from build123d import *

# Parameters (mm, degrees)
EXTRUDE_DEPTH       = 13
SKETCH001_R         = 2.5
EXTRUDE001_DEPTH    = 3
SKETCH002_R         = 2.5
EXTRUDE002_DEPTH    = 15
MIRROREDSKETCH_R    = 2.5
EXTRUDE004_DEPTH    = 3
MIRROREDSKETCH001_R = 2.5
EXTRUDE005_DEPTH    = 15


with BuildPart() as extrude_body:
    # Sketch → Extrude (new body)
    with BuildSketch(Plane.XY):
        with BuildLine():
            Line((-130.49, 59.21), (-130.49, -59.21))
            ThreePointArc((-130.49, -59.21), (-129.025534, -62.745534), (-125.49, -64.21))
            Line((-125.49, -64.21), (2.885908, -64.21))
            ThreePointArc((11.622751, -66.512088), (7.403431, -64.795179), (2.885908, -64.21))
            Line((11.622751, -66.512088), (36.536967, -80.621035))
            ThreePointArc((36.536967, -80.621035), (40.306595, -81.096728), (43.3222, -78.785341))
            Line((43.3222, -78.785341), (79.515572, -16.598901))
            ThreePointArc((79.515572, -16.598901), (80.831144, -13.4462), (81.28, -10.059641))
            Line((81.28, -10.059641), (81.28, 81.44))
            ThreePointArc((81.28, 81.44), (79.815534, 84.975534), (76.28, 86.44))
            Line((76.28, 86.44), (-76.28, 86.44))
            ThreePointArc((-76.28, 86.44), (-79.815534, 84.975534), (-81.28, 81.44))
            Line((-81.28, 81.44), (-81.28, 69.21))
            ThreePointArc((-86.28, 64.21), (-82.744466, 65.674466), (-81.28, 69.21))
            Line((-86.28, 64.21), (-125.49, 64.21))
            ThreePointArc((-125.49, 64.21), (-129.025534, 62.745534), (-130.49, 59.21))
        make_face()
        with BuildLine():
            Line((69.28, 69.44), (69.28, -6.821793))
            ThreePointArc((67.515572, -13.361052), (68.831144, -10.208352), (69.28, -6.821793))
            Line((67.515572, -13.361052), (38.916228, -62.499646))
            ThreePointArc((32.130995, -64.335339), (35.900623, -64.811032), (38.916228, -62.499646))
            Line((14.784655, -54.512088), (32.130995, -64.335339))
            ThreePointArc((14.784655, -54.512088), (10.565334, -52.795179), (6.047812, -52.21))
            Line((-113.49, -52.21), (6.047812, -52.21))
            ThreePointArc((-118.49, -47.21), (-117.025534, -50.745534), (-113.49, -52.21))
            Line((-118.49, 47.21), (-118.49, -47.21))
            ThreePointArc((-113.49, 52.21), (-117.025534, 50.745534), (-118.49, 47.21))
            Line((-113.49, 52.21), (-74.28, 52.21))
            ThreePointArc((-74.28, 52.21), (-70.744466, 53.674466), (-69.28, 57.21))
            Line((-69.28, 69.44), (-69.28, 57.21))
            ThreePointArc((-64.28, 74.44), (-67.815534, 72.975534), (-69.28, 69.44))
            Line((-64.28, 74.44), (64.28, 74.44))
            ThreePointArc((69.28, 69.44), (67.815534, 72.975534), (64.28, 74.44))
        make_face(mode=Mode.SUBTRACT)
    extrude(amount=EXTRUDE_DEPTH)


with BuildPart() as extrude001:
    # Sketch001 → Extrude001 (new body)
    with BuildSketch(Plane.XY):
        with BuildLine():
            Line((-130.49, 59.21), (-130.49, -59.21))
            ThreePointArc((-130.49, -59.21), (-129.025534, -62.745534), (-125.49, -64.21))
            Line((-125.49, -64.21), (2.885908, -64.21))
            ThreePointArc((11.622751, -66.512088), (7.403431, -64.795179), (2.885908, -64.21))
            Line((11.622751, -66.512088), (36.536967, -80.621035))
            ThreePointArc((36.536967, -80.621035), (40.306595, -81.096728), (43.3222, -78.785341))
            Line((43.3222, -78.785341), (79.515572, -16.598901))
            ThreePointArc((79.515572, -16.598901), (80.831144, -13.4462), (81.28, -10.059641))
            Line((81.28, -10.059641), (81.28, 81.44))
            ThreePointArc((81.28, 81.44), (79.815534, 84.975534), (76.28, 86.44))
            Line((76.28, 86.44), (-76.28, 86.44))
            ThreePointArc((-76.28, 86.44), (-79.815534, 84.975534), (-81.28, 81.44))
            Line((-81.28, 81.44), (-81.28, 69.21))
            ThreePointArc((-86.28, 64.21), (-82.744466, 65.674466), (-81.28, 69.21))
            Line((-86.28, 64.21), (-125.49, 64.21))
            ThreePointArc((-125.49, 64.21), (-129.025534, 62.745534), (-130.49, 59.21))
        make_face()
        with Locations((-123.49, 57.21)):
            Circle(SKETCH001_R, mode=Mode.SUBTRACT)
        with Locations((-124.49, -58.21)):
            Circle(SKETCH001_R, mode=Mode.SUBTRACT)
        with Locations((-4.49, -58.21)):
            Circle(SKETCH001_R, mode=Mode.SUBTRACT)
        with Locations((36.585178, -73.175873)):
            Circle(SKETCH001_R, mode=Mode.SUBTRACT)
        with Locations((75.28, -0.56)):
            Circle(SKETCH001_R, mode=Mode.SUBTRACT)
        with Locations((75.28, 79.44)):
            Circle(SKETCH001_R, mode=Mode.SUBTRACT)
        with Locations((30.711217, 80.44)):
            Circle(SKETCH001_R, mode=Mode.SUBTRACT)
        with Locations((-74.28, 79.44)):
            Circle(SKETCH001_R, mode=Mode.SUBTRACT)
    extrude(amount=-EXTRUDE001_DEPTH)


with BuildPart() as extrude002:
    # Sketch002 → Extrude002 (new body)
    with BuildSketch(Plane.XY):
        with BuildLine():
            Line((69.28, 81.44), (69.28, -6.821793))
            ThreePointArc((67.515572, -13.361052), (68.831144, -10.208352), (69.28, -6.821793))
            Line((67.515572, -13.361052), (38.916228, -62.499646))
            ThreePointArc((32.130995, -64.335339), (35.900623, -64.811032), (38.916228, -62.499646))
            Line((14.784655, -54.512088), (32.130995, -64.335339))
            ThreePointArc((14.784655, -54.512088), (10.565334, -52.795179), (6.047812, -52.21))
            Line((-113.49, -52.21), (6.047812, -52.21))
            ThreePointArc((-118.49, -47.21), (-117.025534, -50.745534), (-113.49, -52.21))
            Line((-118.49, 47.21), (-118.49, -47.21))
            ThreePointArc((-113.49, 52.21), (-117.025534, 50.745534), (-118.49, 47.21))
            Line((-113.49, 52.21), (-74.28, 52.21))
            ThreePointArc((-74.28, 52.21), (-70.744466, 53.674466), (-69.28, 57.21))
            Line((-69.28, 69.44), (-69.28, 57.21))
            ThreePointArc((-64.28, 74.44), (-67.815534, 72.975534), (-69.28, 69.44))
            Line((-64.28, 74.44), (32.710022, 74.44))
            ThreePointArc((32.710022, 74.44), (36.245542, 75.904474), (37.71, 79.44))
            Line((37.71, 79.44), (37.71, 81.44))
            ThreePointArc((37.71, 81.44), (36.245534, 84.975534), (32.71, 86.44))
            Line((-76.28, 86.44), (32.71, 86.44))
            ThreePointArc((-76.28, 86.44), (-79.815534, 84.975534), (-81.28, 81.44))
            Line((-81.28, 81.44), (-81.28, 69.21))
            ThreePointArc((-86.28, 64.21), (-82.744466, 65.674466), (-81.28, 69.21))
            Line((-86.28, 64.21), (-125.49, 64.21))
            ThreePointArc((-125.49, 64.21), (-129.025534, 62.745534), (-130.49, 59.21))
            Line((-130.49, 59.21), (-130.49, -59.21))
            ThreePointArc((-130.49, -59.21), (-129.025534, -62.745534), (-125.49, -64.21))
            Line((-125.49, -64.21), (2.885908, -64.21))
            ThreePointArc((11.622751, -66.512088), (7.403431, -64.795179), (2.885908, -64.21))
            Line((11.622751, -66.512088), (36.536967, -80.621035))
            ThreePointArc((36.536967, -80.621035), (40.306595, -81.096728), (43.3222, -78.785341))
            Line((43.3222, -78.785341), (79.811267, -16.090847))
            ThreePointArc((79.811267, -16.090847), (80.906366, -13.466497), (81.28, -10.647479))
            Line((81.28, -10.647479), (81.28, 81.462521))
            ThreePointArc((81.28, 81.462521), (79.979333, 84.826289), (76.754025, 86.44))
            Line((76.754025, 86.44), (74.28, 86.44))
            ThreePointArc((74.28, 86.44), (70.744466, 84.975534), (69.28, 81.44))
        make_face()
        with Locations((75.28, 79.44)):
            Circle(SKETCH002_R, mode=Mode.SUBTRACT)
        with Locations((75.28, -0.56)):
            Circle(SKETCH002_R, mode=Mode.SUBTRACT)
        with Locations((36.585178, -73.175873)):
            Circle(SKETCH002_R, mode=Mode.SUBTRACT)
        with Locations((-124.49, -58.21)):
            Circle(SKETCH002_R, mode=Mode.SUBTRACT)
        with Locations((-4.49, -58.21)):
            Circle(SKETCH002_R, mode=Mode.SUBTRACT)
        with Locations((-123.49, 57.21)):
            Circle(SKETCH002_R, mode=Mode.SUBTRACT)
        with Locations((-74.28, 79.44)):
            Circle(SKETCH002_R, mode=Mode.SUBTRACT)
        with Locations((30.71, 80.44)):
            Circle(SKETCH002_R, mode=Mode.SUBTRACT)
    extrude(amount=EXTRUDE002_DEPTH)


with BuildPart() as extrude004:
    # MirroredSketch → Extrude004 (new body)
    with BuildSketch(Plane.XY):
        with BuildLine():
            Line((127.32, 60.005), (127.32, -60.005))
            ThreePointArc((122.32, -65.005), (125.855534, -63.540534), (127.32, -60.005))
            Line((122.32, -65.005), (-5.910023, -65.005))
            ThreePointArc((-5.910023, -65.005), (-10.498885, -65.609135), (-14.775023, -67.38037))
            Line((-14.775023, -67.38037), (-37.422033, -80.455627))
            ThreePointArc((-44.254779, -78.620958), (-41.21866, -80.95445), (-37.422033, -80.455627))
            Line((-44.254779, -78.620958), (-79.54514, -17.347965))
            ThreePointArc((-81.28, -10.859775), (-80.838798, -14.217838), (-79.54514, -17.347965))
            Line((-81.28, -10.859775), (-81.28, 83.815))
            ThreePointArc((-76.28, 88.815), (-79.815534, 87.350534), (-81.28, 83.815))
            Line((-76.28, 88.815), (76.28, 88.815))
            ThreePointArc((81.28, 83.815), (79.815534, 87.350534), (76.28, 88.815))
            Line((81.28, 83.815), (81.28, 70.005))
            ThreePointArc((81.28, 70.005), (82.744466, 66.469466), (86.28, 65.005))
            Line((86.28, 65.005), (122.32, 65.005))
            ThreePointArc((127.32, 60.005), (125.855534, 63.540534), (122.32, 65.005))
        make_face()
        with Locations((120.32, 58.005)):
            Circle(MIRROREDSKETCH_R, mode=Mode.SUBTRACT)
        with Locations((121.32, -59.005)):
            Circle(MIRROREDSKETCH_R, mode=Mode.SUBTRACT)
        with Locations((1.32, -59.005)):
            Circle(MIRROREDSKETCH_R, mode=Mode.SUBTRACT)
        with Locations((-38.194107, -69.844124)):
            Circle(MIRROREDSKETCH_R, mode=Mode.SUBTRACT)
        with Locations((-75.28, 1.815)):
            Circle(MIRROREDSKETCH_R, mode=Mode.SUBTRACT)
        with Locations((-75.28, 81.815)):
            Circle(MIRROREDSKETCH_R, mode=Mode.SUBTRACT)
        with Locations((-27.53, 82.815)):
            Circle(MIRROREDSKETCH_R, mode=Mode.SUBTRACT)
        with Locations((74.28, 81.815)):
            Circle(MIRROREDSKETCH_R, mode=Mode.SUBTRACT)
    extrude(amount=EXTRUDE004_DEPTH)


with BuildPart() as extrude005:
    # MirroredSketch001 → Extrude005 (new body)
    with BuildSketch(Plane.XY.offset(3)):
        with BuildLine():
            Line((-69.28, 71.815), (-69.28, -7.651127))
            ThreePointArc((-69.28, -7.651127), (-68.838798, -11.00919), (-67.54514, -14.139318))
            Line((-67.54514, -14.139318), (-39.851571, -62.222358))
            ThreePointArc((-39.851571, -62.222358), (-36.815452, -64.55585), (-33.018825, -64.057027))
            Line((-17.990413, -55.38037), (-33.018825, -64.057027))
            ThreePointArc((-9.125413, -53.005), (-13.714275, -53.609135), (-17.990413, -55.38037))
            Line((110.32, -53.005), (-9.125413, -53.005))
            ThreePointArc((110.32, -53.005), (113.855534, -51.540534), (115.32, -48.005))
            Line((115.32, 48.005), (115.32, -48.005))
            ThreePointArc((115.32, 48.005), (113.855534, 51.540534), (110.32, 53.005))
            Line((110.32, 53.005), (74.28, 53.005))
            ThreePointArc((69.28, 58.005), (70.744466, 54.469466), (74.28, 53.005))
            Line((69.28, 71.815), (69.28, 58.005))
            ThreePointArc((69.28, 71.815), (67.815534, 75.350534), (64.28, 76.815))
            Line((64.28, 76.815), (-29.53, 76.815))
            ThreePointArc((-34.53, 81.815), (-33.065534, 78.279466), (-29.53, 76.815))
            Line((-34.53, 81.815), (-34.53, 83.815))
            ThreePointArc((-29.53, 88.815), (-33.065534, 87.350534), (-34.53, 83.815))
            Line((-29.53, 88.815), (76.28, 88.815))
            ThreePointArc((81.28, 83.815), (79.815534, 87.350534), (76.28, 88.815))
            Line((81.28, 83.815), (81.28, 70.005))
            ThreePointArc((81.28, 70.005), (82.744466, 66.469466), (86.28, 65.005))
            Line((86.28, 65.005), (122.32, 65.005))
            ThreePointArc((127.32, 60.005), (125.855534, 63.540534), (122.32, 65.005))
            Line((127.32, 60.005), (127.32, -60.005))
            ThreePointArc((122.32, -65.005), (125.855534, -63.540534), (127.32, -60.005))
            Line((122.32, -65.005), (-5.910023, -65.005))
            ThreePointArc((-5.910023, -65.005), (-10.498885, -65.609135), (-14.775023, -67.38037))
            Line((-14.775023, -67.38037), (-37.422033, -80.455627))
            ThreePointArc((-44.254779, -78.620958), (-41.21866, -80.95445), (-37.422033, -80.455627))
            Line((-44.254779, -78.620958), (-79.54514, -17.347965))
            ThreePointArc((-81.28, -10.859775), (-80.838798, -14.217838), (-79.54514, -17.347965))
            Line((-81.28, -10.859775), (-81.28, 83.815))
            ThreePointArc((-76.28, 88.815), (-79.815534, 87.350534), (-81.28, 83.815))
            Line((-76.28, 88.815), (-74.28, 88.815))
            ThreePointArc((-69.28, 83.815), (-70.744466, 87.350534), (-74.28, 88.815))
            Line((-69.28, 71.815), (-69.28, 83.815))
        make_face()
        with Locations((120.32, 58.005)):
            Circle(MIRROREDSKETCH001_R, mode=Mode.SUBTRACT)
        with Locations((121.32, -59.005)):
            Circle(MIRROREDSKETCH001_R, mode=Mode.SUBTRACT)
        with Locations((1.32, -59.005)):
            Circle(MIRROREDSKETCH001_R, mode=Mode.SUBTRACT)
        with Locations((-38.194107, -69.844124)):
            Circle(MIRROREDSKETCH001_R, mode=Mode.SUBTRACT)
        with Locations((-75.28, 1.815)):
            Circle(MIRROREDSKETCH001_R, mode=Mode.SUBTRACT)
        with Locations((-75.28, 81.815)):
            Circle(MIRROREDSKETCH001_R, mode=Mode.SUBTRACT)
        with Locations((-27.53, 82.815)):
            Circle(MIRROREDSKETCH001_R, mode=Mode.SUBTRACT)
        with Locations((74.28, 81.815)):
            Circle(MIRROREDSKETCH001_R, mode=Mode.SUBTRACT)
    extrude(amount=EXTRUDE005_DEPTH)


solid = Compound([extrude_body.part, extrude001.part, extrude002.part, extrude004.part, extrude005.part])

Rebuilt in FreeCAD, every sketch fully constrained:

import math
import FreeCAD as App
import Part
import Sketcher

V = App.Vector
Q = App.Units.Quantity

doc = App.newDocument("Part")
body = doc.addObject("PartDesign::Body", "Body")

# Sketch on XY plane
sketch1 = body.newObject("Sketcher::SketchObject", "Sketch")
sketch1.AttachmentSupport = (doc.getObject("XY_Plane"), [""])
sketch1.MapMode = "FlatFace"
sketch1.addGeometry([
    Part.LineSegment(V(-130.5, 59.2, 0), V(-130.5, -59.2, 0)),  # 0
    Part.ArcOfCircle(Part.Circle(V(-125.5, -59.2, 0), V(0, 0, 1), 5), math.radians(180), math.radians(270)),  # 1
    Part.LineSegment(V(-125.5, -64.2, 0), V(2.9, -64.2, 0)),  # 2
    Part.ArcOfCircle(Part.Circle(V(2.9, -81.9, 0), V(0, 0, 1), 17.7), math.radians(60), math.radians(90)),  # 3
    Part.LineSegment(V(11.6, -66.5, 0), V(36.5, -80.6, 0)),  # 4
    Part.ArcOfCircle(Part.Circle(V(39, -76.3, 0), V(0, 0, 1), 5), math.radians(-120), math.radians(-30)),  # 5
    Part.LineSegment(V(43.3, -78.8, 0), V(79.5, -16.6, 0)),  # 6
    Part.ArcOfCircle(Part.Circle(V(68.3, -10.1, 0), V(0, 0, 1), 13), math.radians(-30), math.radians(0)),  # 7
    Part.LineSegment(V(81.3, -10.1, 0), V(81.3, 81.4, 0)),  # 8
    Part.ArcOfCircle(Part.Circle(V(76.3, 81.4, 0), V(0, 0, 1), 5), math.radians(0), math.radians(90)),  # 9
    Part.LineSegment(V(76.3, 86.4, 0), V(-76.3, 86.4, 0)),  # 10
    Part.ArcOfCircle(Part.Circle(V(-76.3, 81.4, 0), V(0, 0, 1), 5), math.radians(90), math.radians(180)),  # 11
    Part.LineSegment(V(-81.3, 81.4, 0), V(-81.3, 69.2, 0)),  # 12
    Part.ArcOfCircle(Part.Circle(V(-86.3, 69.2, 0), V(0, 0, 1), 5), math.radians(-90), math.radians(0)),  # 13
    Part.LineSegment(V(-86.3, 64.2, 0), V(-125.5, 64.2, 0)),  # 14
    Part.ArcOfCircle(Part.Circle(V(-125.5, 59.2, 0), V(0, 0, 1), 5), math.radians(90), math.radians(180)),  # 15
    Part.ArcOfCircle(Part.Circle(V(64.3, 69.4, 0), V(0, 0, 1), 5), math.radians(0), math.radians(90)),  # 16
    Part.LineSegment(V(69.3, 69.4, 0), V(69.3, -6.8, 0)),  # 17
    Part.ArcOfCircle(Part.Circle(V(56.3, -6.8, 0), V(0, 0, 1), 13), math.radians(-30), math.radians(0)),  # 18
    Part.LineSegment(V(67.5, -13.4, 0), V(38.9, -62.5, 0)),  # 19
    Part.ArcOfCircle(Part.Circle(V(34.6, -60, 0), V(0, 0, 1), 5), math.radians(-120), math.radians(-30)),  # 20
    Part.LineSegment(V(32.1, -64.3, 0), V(14.8, -54.5, 0)),  # 21
    Part.ArcOfCircle(Part.Circle(V(6, -69.9, 0), V(0, 0, 1), 17.7), math.radians(60), math.radians(90)),  # 22
    Part.LineSegment(V(6, -52.2, 0), V(-113.5, -52.2, 0)),  # 23
    Part.ArcOfCircle(Part.Circle(V(-113.5, -47.2, 0), V(0, 0, 1), 5), math.radians(180), math.radians(270)),  # 24
    Part.LineSegment(V(-118.5, -47.2, 0), V(-118.5, 47.2, 0)),  # 25
    Part.ArcOfCircle(Part.Circle(V(-113.5, 47.2, 0), V(0, 0, 1), 5), math.radians(90), math.radians(180)),  # 26
    Part.LineSegment(V(-113.5, 52.2, 0), V(-74.3, 52.2, 0)),  # 27
    Part.ArcOfCircle(Part.Circle(V(-74.3, 57.2, 0), V(0, 0, 1), 5), math.radians(-90), math.radians(0)),  # 28
    Part.LineSegment(V(-69.3, 57.2, 0), V(-69.3, 69.4, 0)),  # 29
    Part.ArcOfCircle(Part.Circle(V(-64.3, 69.4, 0), V(0, 0, 1), 5), math.radians(90), math.radians(180)),  # 30
    Part.LineSegment(V(-64.3, 74.4, 0), V(64.3, 74.4, 0)),  # 31
], False)
sketch1.addConstraint([
    Sketcher.Constraint("Tangent", 0, 2, 1, 1),
    Sketcher.Constraint("Tangent", 1, 2, 2, 1),
    Sketcher.Constraint("Tangent", 2, 2, 3, 2),
    Sketcher.Constraint("Tangent", 3, 1, 4, 1),
    Sketcher.Constraint("Tangent", 4, 2, 5, 1),
    Sketcher.Constraint("Tangent", 5, 2, 6, 1),
    Sketcher.Constraint("Tangent", 6, 2, 7, 1),
    Sketcher.Constraint("Tangent", 7, 2, 8, 1),
    Sketcher.Constraint("Tangent", 8, 2, 9, 1),
    Sketcher.Constraint("Tangent", 9, 2, 10, 1),
    Sketcher.Constraint("Tangent", 10, 2, 11, 1),
    Sketcher.Constraint("Tangent", 11, 2, 12, 1),
    Sketcher.Constraint("Tangent", 12, 2, 13, 2),
    Sketcher.Constraint("Tangent", 13, 1, 14, 1),
    Sketcher.Constraint("Tangent", 14, 2, 15, 1),
    Sketcher.Constraint("Tangent", 15, 2, 0, 1),
    Sketcher.Constraint("Tangent", 16, 1, 17, 1),
    Sketcher.Constraint("Tangent", 17, 2, 18, 2),
    Sketcher.Constraint("Tangent", 18, 1, 19, 1),
    Sketcher.Constraint("Tangent", 19, 2, 20, 2),
    Sketcher.Constraint("Tangent", 20, 1, 21, 1),
    Sketcher.Constraint("Tangent", 21, 2, 22, 1),
    Sketcher.Constraint("Tangent", 22, 2, 23, 1),
    Sketcher.Constraint("Tangent", 23, 2, 24, 2),
    Sketcher.Constraint("Tangent", 24, 1, 25, 1),
    Sketcher.Constraint("Tangent", 25, 2, 26, 2),
    Sketcher.Constraint("Tangent", 26, 1, 27, 1),
    Sketcher.Constraint("Tangent", 27, 2, 28, 1),
    Sketcher.Constraint("Tangent", 28, 2, 29, 1),
    Sketcher.Constraint("Tangent", 29, 2, 30, 2),
    Sketcher.Constraint("Tangent", 30, 1, 31, 1),
    Sketcher.Constraint("Tangent", 31, 2, 16, 2),
    Sketcher.Constraint("Vertical", 0),
    Sketcher.Constraint("Horizontal", 2),
    Sketcher.Constraint("Vertical", 8),
    Sketcher.Constraint("Horizontal", 10),
    Sketcher.Constraint("Vertical", 12),
    Sketcher.Constraint("Horizontal", 14),
    Sketcher.Constraint("Vertical", 17),
    Sketcher.Constraint("Horizontal", 23),
    Sketcher.Constraint("Vertical", 25),
    Sketcher.Constraint("Horizontal", 27),
    Sketcher.Constraint("Vertical", 29),
    Sketcher.Constraint("Horizontal", 31),
    Sketcher.Constraint("Equal", 1, 5),
    Sketcher.Constraint("Equal", 5, 9),
    Sketcher.Constraint("Equal", 9, 11),
    Sketcher.Constraint("Equal", 11, 13),
    Sketcher.Constraint("Equal", 13, 15),
    Sketcher.Constraint("Equal", 15, 16),
    Sketcher.Constraint("Equal", 16, 20),
    Sketcher.Constraint("Equal", 20, 24),
    Sketcher.Constraint("Equal", 24, 26),
    Sketcher.Constraint("Equal", 26, 28),
    Sketcher.Constraint("Equal", 28, 30),
    Sketcher.Constraint("Parallel", 6, 19),
    Sketcher.Constraint("Parallel", 4, 21),
    Sketcher.Constraint("Equal", 14, 27),
    Sketcher.Constraint("Equal", 12, 29),
    Sketcher.Constraint("Radius", 1, 5.0),
    Sketcher.Constraint("Angle", 6, Q("59.8 deg")),
    Sketcher.Constraint("DistanceX", 16, 3, 9, 3, 12.0),
    Sketcher.Constraint("DistanceY", 16, 3, 9, 3, 12.0),
    Sketcher.Constraint("DistanceX", 1, 3, 24, 3, 12.0),
    Sketcher.Constraint("DistanceY", 1, 3, 24, 3, 12.0),
    Sketcher.Constraint("DistanceX", 18, 1, 6, 2, 12.0),
    Sketcher.Constraint("DistanceY", 3, 1, 21, 2, 12.0),
    Sketcher.Constraint("DistanceX", 10, 2, 10, 1, 152.56),
    Sketcher.Constraint("DistanceX", 14, 2, 14, 1, 39.21),
    Sketcher.Constraint("DistanceY", 0, 2, 0, 1, 118.42),
    Sketcher.Constraint("DistanceY", 12, 2, 12, 1, 12.23),
    Sketcher.Constraint("DistanceX", 1, 3, -1, 1, 125.49),
    Sketcher.Constraint("DistanceY", 1, 3, -1, 1, 59.21),
    Sketcher.Constraint("Radius", 3, 17.729997),
    Sketcher.Constraint("Radius", 7, 13.000002),
    Sketcher.Constraint("DistanceY", 8, 1, 8, 2, 91.499641),
    Sketcher.Constraint("DistanceX", -1, 1, 5, 2, 43.3222),
    Sketcher.Constraint("DistanceX", 21, 2, 20, 3, 19.810199),
    Sketcher.Constraint("Distance", 4, 28.63181),
    Sketcher.Constraint("Distance", 19, 56.855289),
])
pad1 = body.newObject("PartDesign::Pad", "Pad")
pad1.Profile = sketch1
pad1.Length = 13
body2 = doc.addObject("PartDesign::Body", "Body001")

# Sketch on XY plane
sketch2 = body2.newObject("Sketcher::SketchObject", "Sketch001")
sketch2.AttachmentSupport = (doc.getObject("XY_Plane001"), [""])
sketch2.MapMode = "FlatFace"
sketch2.addGeometry([
    Part.LineSegment(V(-130.5, 59.2, 0), V(-130.5, -59.2, 0)),  # 0
    Part.ArcOfCircle(Part.Circle(V(-125.5, -59.2, 0), V(0, 0, 1), 5), math.radians(180), math.radians(270)),  # 1
    Part.LineSegment(V(-125.5, -64.2, 0), V(2.9, -64.2, 0)),  # 2
    Part.ArcOfCircle(Part.Circle(V(2.9, -81.9, 0), V(0, 0, 1), 17.7), math.radians(60), math.radians(90)),  # 3
    Part.LineSegment(V(11.6, -66.5, 0), V(36.5, -80.6, 0)),  # 4
    Part.ArcOfCircle(Part.Circle(V(39, -76.3, 0), V(0, 0, 1), 5), math.radians(-120), math.radians(-30)),  # 5
    Part.LineSegment(V(43.3, -78.8, 0), V(79.5, -16.6, 0)),  # 6
    Part.ArcOfCircle(Part.Circle(V(68.3, -10.1, 0), V(0, 0, 1), 13), math.radians(-30), math.radians(0)),  # 7
    Part.LineSegment(V(81.3, -10.1, 0), V(81.3, 81.4, 0)),  # 8
    Part.ArcOfCircle(Part.Circle(V(76.3, 81.4, 0), V(0, 0, 1), 5), math.radians(0), math.radians(90)),  # 9
    Part.LineSegment(V(76.3, 86.4, 0), V(-76.3, 86.4, 0)),  # 10
    Part.ArcOfCircle(Part.Circle(V(-76.3, 81.4, 0), V(0, 0, 1), 5), math.radians(90), math.radians(180)),  # 11
    Part.LineSegment(V(-81.3, 81.4, 0), V(-81.3, 69.2, 0)),  # 12
    Part.ArcOfCircle(Part.Circle(V(-86.3, 69.2, 0), V(0, 0, 1), 5), math.radians(-90), math.radians(0)),  # 13
    Part.LineSegment(V(-86.3, 64.2, 0), V(-125.5, 64.2, 0)),  # 14
    Part.ArcOfCircle(Part.Circle(V(-125.5, 59.2, 0), V(0, 0, 1), 5), math.radians(90), math.radians(180)),  # 15
    Part.Circle(V(-124.5, -58.2, 0), V(0, 0, 1), 2.5),  # 16
    Part.Circle(V(-4.5, -58.2, 0), V(0, 0, 1), 2.5),  # 17
    Part.Circle(V(36.6, -73.2, 0), V(0, 0, 1), 2.5),  # 18
    Part.Circle(V(75.3, -0.6, 0), V(0, 0, 1), 2.5),  # 19
    Part.Circle(V(-123.5, 57.2, 0), V(0, 0, 1), 2.5),  # 20
    Part.Circle(V(-74.3, 79.4, 0), V(0, 0, 1), 2.5),  # 21
    Part.Circle(V(30.7, 80.4, 0), V(0, 0, 1), 2.5),  # 22
    Part.Circle(V(75.3, 79.4, 0), V(0, 0, 1), 2.5),  # 23
], False)
sketch2.addConstraint([
    Sketcher.Constraint("Tangent", 0, 2, 1, 1),
    Sketcher.Constraint("Tangent", 1, 2, 2, 1),
    Sketcher.Constraint("Tangent", 2, 2, 3, 2),
    Sketcher.Constraint("Tangent", 3, 1, 4, 1),
    Sketcher.Constraint("Tangent", 4, 2, 5, 1),
    Sketcher.Constraint("Tangent", 5, 2, 6, 1),
    Sketcher.Constraint("Tangent", 6, 2, 7, 1),
    Sketcher.Constraint("Tangent", 7, 2, 8, 1),
    Sketcher.Constraint("Tangent", 8, 2, 9, 1),
    Sketcher.Constraint("Tangent", 9, 2, 10, 1),
    Sketcher.Constraint("Tangent", 10, 2, 11, 1),
    Sketcher.Constraint("Tangent", 11, 2, 12, 1),
    Sketcher.Constraint("Tangent", 12, 2, 13, 2),
    Sketcher.Constraint("Tangent", 13, 1, 14, 1),
    Sketcher.Constraint("Tangent", 14, 2, 15, 1),
    Sketcher.Constraint("Tangent", 15, 2, 0, 1),
    Sketcher.Constraint("Vertical", 0),
    Sketcher.Constraint("Horizontal", 2),
    Sketcher.Constraint("Vertical", 8),
    Sketcher.Constraint("Horizontal", 10),
    Sketcher.Constraint("Vertical", 12),
    Sketcher.Constraint("Horizontal", 14),
    Sketcher.Constraint("Equal", 1, 5),
    Sketcher.Constraint("Equal", 5, 9),
    Sketcher.Constraint("Equal", 9, 11),
    Sketcher.Constraint("Equal", 11, 13),
    Sketcher.Constraint("Equal", 13, 15),
    Sketcher.Constraint("Equal", 16, 17),
    Sketcher.Constraint("Equal", 17, 18),
    Sketcher.Constraint("Equal", 18, 19),
    Sketcher.Constraint("Equal", 19, 20),
    Sketcher.Constraint("Equal", 20, 21),
    Sketcher.Constraint("Equal", 21, 22),
    Sketcher.Constraint("Equal", 22, 23),
    Sketcher.Constraint("Horizontal", 16, 3, 17, 3),
    Sketcher.Constraint("Horizontal", 21, 3, 23, 3),
    Sketcher.Constraint("Vertical", 19, 3, 23, 3),
    Sketcher.Constraint("Diameter", 16, 5.0),
    Sketcher.Constraint("Radius", 1, 5.0),
    Sketcher.Constraint("Angle", 6, Q("59.8 deg")),
    Sketcher.Constraint("DistanceX", 1, 3, 16, 3, 1.0),
    Sketcher.Constraint("DistanceY", 1, 3, 16, 3, 1.0),
    Sketcher.Constraint("DistanceX", 16, 3, 17, 3, 120.0),
    Sketcher.Constraint("DistanceX", 19, 3, 9, 3, 1.0),
    Sketcher.Constraint("DistanceY", 19, 3, 9, 3, 82.0),
    Sketcher.Constraint("DistanceX", 15, 3, 20, 3, 2.0),
    Sketcher.Constraint("DistanceY", 20, 3, 15, 3, 2.0),
    Sketcher.Constraint("DistanceX", 11, 3, 21, 3, 2.0),
    Sketcher.Constraint("DistanceY", 21, 3, 11, 3, 2.0),
    Sketcher.Constraint("DistanceY", 22, 3, 9, 3, 1.0),
    Sketcher.Constraint("DistanceX", 10, 2, 10, 1, 152.56),
    Sketcher.Constraint("DistanceX", 14, 2, 14, 1, 39.21),
    Sketcher.Constraint("DistanceY", 0, 2, 0, 1, 118.42),
    Sketcher.Constraint("DistanceY", 12, 2, 12, 1, 12.23),
    Sketcher.Constraint("DistanceX", 1, 3, -1, 1, 125.49),
    Sketcher.Constraint("DistanceY", 1, 3, -1, 1, 59.21),
    Sketcher.Constraint("Radius", 3, 17.729997),
    Sketcher.Constraint("Radius", 7, 13.000002),
    Sketcher.Constraint("DistanceY", 8, 1, 8, 2, 91.499641),
    Sketcher.Constraint("DistanceX", -1, 1, 5, 2, 43.3222),
    Sketcher.Constraint("Distance", 4, 28.63181),
    Sketcher.Constraint("DistanceY", 5, 3, 18, 3, 3.094369),
    Sketcher.Constraint("DistanceX", 3, 3, 18, 3, 33.699269),
    Sketcher.Constraint("DistanceX", 22, 3, 7, 3, 37.568781),
])
pad2 = body2.newObject("PartDesign::Pad", "Pad001")
pad2.Profile = sketch2
pad2.Length = 3
pad2.Reversed = True
body3 = doc.addObject("PartDesign::Body", "Body002")

# Sketch on XY plane
sketch3 = body3.newObject("Sketcher::SketchObject", "Sketch002")
sketch3.AttachmentSupport = (doc.getObject("XY_Plane002"), [""])
sketch3.MapMode = "FlatFace"
sketch3.addGeometry([
    Part.LineSegment(V(69.28, 81.44, 0), V(69.28, -6.821793, 0)),  # 0
    Part.ArcOfCircle(Part.Circle(V(56.280005, -6.821793, 0), V(0, 0, 1), 12.999995), math.radians(-30.20001), math.radians(0.000001)),  # 1
    Part.LineSegment(V(67.515572, -13.361052, 0), V(38.916228, -62.499646, 0)),  # 2
    Part.ArcOfCircle(Part.Circle(V(34.594854, -59.984546, 0), V(0, 0, 1), 5), math.radians(-119.522923), math.radians(-30.200007)),  # 3
    Part.LineSegment(V(32.130995, -64.335339, 0), V(14.784655, -54.512088, 0)),  # 4
    Part.ArcOfCircle(Part.Circle(V(6.047811, -69.940004, 0), V(0, 0, 1), 17.730004), math.radians(60.477079), math.radians(89.999995)),  # 5
    Part.LineSegment(V(6.047812, -52.21, 0), V(-113.49, -52.21, 0)),  # 6
    Part.ArcOfCircle(Part.Circle(V(-113.49, -47.21, 0), V(0, 0, 1), 5), math.radians(179.999996), math.radians(270.000004)),  # 7
    Part.LineSegment(V(-118.49, -47.21, 0), V(-118.49, 47.21, 0)),  # 8
    Part.ArcOfCircle(Part.Circle(V(-113.49, 47.21, 0), V(0, 0, 1), 5), math.radians(89.999996), math.radians(180.000004)),  # 9
    Part.LineSegment(V(-113.49, 52.21, 0), V(-74.28, 52.21, 0)),  # 10
    Part.ArcOfCircle(Part.Circle(V(-74.28, 57.21, 0), V(0, 0, 1), 5), math.radians(-90.000004), math.radians(0.000004)),  # 11
    Part.LineSegment(V(-69.28, 57.21, 0), V(-69.28, 69.44, 0)),  # 12
    Part.ArcOfCircle(Part.Circle(V(-64.28, 69.44, 0), V(0, 0, 1), 5), math.radians(89.999996), math.radians(180.000004)),  # 13
    Part.LineSegment(V(-64.28, 74.44, 0), V(32.710022, 74.44, 0)),  # 14
    Part.ArcOfCircle(Part.Circle(V(32.71, 79.44, 0), V(0, 0, 1), 5), math.radians(-89.999752), math.radians(0.000004)),  # 15
    Part.LineSegment(V(37.71, 79.44, 0), V(37.71, 81.44, 0)),  # 16
    Part.ArcOfCircle(Part.Circle(V(32.71, 81.44, 0), V(0, 0, 1), 5), math.radians(-0.000004), math.radians(90.000004)),  # 17
    Part.LineSegment(V(32.71, 86.44, 0), V(-76.28, 86.44, 0)),  # 18
    Part.ArcOfCircle(Part.Circle(V(-76.28, 81.44, 0), V(0, 0, 1), 5), math.radians(89.999996), math.radians(180.000004)),  # 19
    Part.LineSegment(V(-81.28, 81.44, 0), V(-81.28, 69.21, 0)),  # 20
    Part.ArcOfCircle(Part.Circle(V(-86.28, 69.21, 0), V(0, 0, 1), 5), math.radians(-90.000004), math.radians(0.000004)),  # 21
    Part.LineSegment(V(-86.28, 64.21, 0), V(-125.49, 64.21, 0)),  # 22
    Part.ArcOfCircle(Part.Circle(V(-125.49, 59.21, 0), V(0, 0, 1), 5), math.radians(89.999996), math.radians(180.000004)),  # 23
    Part.LineSegment(V(-130.49, 59.21, 0), V(-130.49, -59.21, 0)),  # 24
    Part.ArcOfCircle(Part.Circle(V(-125.49, -59.21, 0), V(0, 0, 1), 5), math.radians(179.999996), math.radians(270.000004)),  # 25
    Part.LineSegment(V(-125.49, -64.21, 0), V(2.885908, -64.21, 0)),  # 26
    Part.ArcOfCircle(Part.Circle(V(2.885909, -81.939997, 0), V(0, 0, 1), 17.729997), math.radians(60.477072), math.radians(90.000002)),  # 27
    Part.LineSegment(V(11.622751, -66.512088, 0), V(36.536967, -80.621035, 0)),  # 28
    Part.ArcOfCircle(Part.Circle(V(39.000826, -76.270242, 0), V(0, 0, 1), 5), math.radians(-119.522927), math.radians(-30.199987)),  # 29
    Part.LineSegment(V(43.3222, -78.785341, 0), V(79.811267, -16.090847, 0)),  # 30
    Part.ArcOfCircle(Part.Circle(V(70.458615, -10.647477, 0), V(0, 0, 1), 10.821385), math.radians(-30.199983), math.radians(-0.000009)),  # 31
    Part.LineSegment(V(81.28, -10.647479, 0), V(81.28, 81.462521, 0)),  # 32
    Part.ArcOfCircle(Part.Circle(V(76.280001, 81.462521, 0), V(0, 0, 1), 4.999999), math.radians(-0.000002), math.radians(84.559909)),  # 33
    Part.LineSegment(V(76.754025, 86.44, 0), V(74.28, 86.44, 0)),  # 34
    Part.ArcOfCircle(Part.Circle(V(74.28, 81.44, 0), V(0, 0, 1), 5), math.radians(89.999996), math.radians(180.000004)),  # 35
    Part.Circle(V(-124.49, -58.21, 0), V(0, 0, 1), 2.5),  # 36
    Part.Circle(V(-4.49, -58.21, 0), V(0, 0, 1), 2.5),  # 37
    Part.Circle(V(36.585178, -73.175873, 0), V(0, 0, 1), 2.5),  # 38
    Part.Circle(V(75.28, -0.56, 0), V(0, 0, 1), 2.5),  # 39
    Part.Circle(V(-123.49, 57.21, 0), V(0, 0, 1), 2.5),  # 40
    Part.Circle(V(-74.28, 79.44, 0), V(0, 0, 1), 2.5),  # 41
    Part.Circle(V(30.71, 80.44, 0), V(0, 0, 1), 2.5),  # 42
    Part.Circle(V(75.28, 79.44, 0), V(0, 0, 1), 2.5),  # 43
], False)
sketch3.addConstraint([
    Sketcher.Constraint("Coincident", 0, 2, 1, 2),
    Sketcher.Constraint("Coincident", 1, 1, 2, 1),
    Sketcher.Constraint("Coincident", 2, 2, 3, 2),
    Sketcher.Constraint("Coincident", 3, 1, 4, 1),
    Sketcher.Constraint("Coincident", 4, 2, 5, 1),
    Sketcher.Constraint("Coincident", 5, 2, 6, 1),
    Sketcher.Constraint("Coincident", 6, 2, 7, 2),
    Sketcher.Constraint("Coincident", 7, 1, 8, 1),
    Sketcher.Constraint("Coincident", 8, 2, 9, 2),
    Sketcher.Constraint("Coincident", 9, 1, 10, 1),
    Sketcher.Constraint("Coincident", 10, 2, 11, 1),
    Sketcher.Constraint("Coincident", 11, 2, 12, 1),
    Sketcher.Constraint("Coincident", 12, 2, 13, 2),
    Sketcher.Constraint("Coincident", 13, 1, 14, 1),
    Sketcher.Constraint("Coincident", 14, 2, 15, 1),
    Sketcher.Constraint("Coincident", 15, 2, 16, 1),
    Sketcher.Constraint("Coincident", 16, 2, 17, 1),
    Sketcher.Constraint("Coincident", 17, 2, 18, 1),
    Sketcher.Constraint("Coincident", 18, 2, 19, 1),
    Sketcher.Constraint("Coincident", 19, 2, 20, 1),
    Sketcher.Constraint("Coincident", 20, 2, 21, 2),
    Sketcher.Constraint("Coincident", 21, 1, 22, 1),
    Sketcher.Constraint("Coincident", 22, 2, 23, 1),
    Sketcher.Constraint("Coincident", 23, 2, 24, 1),
    Sketcher.Constraint("Coincident", 24, 2, 25, 1),
    Sketcher.Constraint("Coincident", 25, 2, 26, 1),
    Sketcher.Constraint("Coincident", 26, 2, 27, 2),
    Sketcher.Constraint("Coincident", 27, 1, 28, 1),
    Sketcher.Constraint("Coincident", 28, 2, 29, 1),
    Sketcher.Constraint("Coincident", 29, 2, 30, 1),
    Sketcher.Constraint("Coincident", 30, 2, 31, 1),
    Sketcher.Constraint("Coincident", 31, 2, 32, 1),
    Sketcher.Constraint("Coincident", 32, 2, 33, 1),
    Sketcher.Constraint("Coincident", 33, 2, 34, 1),
    Sketcher.Constraint("Coincident", 34, 2, 35, 1),
    Sketcher.Constraint("Coincident", 35, 2, 0, 1),
    Sketcher.Constraint("Vertical", 0),
    Sketcher.Constraint("Horizontal", 6),
    Sketcher.Constraint("Vertical", 8),
    Sketcher.Constraint("Horizontal", 10),
    Sketcher.Constraint("Vertical", 12),
    Sketcher.Constraint("Horizontal", 14),
    Sketcher.Constraint("Vertical", 16),
    Sketcher.Constraint("Horizontal", 18),
    Sketcher.Constraint("Vertical", 20),
    Sketcher.Constraint("Horizontal", 22),
    Sketcher.Constraint("Vertical", 24),
    Sketcher.Constraint("Horizontal", 26),
    Sketcher.Constraint("Vertical", 32),
    Sketcher.Constraint("Horizontal", 34),
    Sketcher.Constraint("Diameter", 36, 5.0),
    Sketcher.Constraint("Diameter", 37, 5.0),
    Sketcher.Constraint("Diameter", 38, 5.0),
    Sketcher.Constraint("Diameter", 39, 5.0),
    Sketcher.Constraint("Diameter", 40, 5.0),
    Sketcher.Constraint("Diameter", 41, 5.0),
    Sketcher.Constraint("Diameter", 42, 5.0),
    Sketcher.Constraint("Diameter", 43, 5.0),
    Sketcher.Constraint("Radius", 3, 5.0),
    Sketcher.Constraint("Radius", 7, 5.0),
    Sketcher.Constraint("Radius", 9, 5.0),
    Sketcher.Constraint("Radius", 11, 5.0),
    Sketcher.Constraint("Radius", 13, 5.0),
    Sketcher.Constraint("Radius", 15, 5.0),
    Sketcher.Constraint("Radius", 17, 5.0),
    Sketcher.Constraint("Radius", 19, 5.0),
    Sketcher.Constraint("Radius", 21, 5.0),
    Sketcher.Constraint("Radius", 23, 5.0),
    Sketcher.Constraint("Radius", 25, 5.0),
    Sketcher.Constraint("Radius", 29, 5.0),
    Sketcher.Constraint("Radius", 33, 4.999999),
    Sketcher.Constraint("Radius", 35, 5.0),
    Sketcher.Constraint("DistanceY", 16, 1, 16, 2, 2.0),
    Sketcher.Constraint("DistanceX", 10, 1, 10, 2, 39.21),
    Sketcher.Constraint("DistanceX", 18, 2, 18, 1, 108.99),
    Sketcher.Constraint("DistanceX", 22, 2, 22, 1, 39.21),
    Sketcher.Constraint("DistanceY", 8, 1, 8, 2, 94.42),
    Sketcher.Constraint("DistanceY", 12, 1, 12, 2, 12.23),
    Sketcher.Constraint("DistanceY", 20, 2, 20, 1, 12.23),
    Sketcher.Constraint("DistanceY", 24, 2, 24, 1, 118.42),
    Sketcher.Constraint("DistanceY", 32, 1, 32, 2, 92.11),
    Sketcher.Constraint("Distance", 30, 72.54),
    Sketcher.Constraint("DistanceX", 7, 3, -1, 1, 113.49),
    Sketcher.Constraint("DistanceY", 7, 3, -1, 1, 47.21),
    Sketcher.Constraint("DistanceY", -1, 1, 9, 3, 47.21),
    Sketcher.Constraint("DistanceX", 11, 3, -1, 1, 74.28),
    Sketcher.Constraint("DistanceY", -1, 1, 13, 3, 69.44),
    Sketcher.Constraint("DistanceX", -1, 1, 15, 3, 32.71),
    Sketcher.Constraint("DistanceY", -1, 1, 17, 3, 81.44),
    Sketcher.Constraint("DistanceX", 19, 3, -1, 1, 76.28),
    Sketcher.Constraint("DistanceY", -1, 1, 21, 3, 69.21),
    Sketcher.Constraint("DistanceX", 23, 3, -1, 1, 125.49),
    Sketcher.Constraint("DistanceY", 25, 3, -1, 1, 59.21),
    Sketcher.Constraint("DistanceX", -1, 1, 33, 3, 76.280001),
    Sketcher.Constraint("DistanceX", -1, 1, 35, 3, 74.28),
    Sketcher.Constraint("DistanceY", -1, 1, 35, 3, 81.44),
    Sketcher.Constraint("DistanceX", 36, 3, -1, 1, 124.49),
    Sketcher.Constraint("DistanceY", 36, 3, -1, 1, 58.21),
    Sketcher.Constraint("DistanceX", 37, 3, -1, 1, 4.49),
    Sketcher.Constraint("DistanceY", 37, 3, -1, 1, 58.21),
    Sketcher.Constraint("DistanceX", -1, 1, 39, 3, 75.28),
    Sketcher.Constraint("DistanceY", 39, 3, -1, 1, 0.56),
    Sketcher.Constraint("DistanceX", 40, 3, -1, 1, 123.49),
    Sketcher.Constraint("DistanceY", -1, 1, 40, 3, 57.21),
    Sketcher.Constraint("DistanceX", 41, 3, -1, 1, 74.28),
    Sketcher.Constraint("DistanceY", -1, 1, 41, 3, 79.44),
    Sketcher.Constraint("DistanceX", -1, 1, 42, 3, 30.71),
    Sketcher.Constraint("DistanceY", -1, 1, 42, 3, 80.44),
    Sketcher.Constraint("DistanceX", -1, 1, 43, 3, 75.28),
    Sketcher.Constraint("DistanceY", -1, 1, 43, 3, 79.44),
    Sketcher.Constraint("DistanceX", 6, 2, -1, 1, 113.49),
    Sketcher.Constraint("DistanceY", 7, 1, -1, 1, 47.21),
    Sketcher.Constraint("DistanceX", 9, 1, -1, 1, 113.49),
    Sketcher.Constraint("DistanceY", -1, 1, 11, 2, 57.21),
    Sketcher.Constraint("DistanceX", 13, 1, -1, 1, 64.28),
    Sketcher.Constraint("DistanceY", -1, 1, 15, 2, 79.44),
    Sketcher.Constraint("DistanceX", -1, 1, 17, 2, 32.71),
    Sketcher.Constraint("DistanceY", -1, 1, 19, 2, 81.44),
    Sketcher.Constraint("DistanceX", 21, 1, -1, 1, 86.28),
    Sketcher.Constraint("DistanceY", -1, 1, 23, 2, 59.21),
    Sketcher.Constraint("DistanceX", 25, 2, -1, 1, 125.49),
    Sketcher.Constraint("DistanceX", -1, 1, 34, 2, 74.28),
    Sketcher.Constraint("DistanceY", -1, 1, 35, 2, 81.44),
    Sketcher.Constraint("Radius", 1, 12.999995),
    Sketcher.Constraint("Radius", 5, 17.730004),
    Sketcher.Constraint("Radius", 27, 17.729997),
    Sketcher.Constraint("Radius", 31, 10.821385),
    Sketcher.Constraint("DistanceX", -1, 1, 29, 2, 43.3222),
    Sketcher.Constraint("Distance", 2, 56.855289),
    Sketcher.Constraint("Distance", 28, 28.63181),
    Sketcher.Constraint("DistanceX", 6, 2, 6, 1, 119.537812),
    Sketcher.Constraint("DistanceX", 14, 1, 14, 2, 96.990022),
    Sketcher.Constraint("DistanceX", 26, 1, 26, 2, 128.375908),
    Sketcher.Constraint("DistanceX", 34, 2, 34, 1, 2.474025),
    Sketcher.Constraint("DistanceY", 0, 2, 0, 1, 88.261793),
    Sketcher.Constraint("DistanceX", -1, 1, 5, 3, 6.047811),
    Sketcher.Constraint("DistanceX", -1, 1, 27, 3, 2.885909),
    Sketcher.Constraint("DistanceY", 3, 1, -1, 1, 64.335339),
    Sketcher.Constraint("DistanceX", -1, 1, 27, 1, 11.622751),
    Sketcher.Constraint("DistanceY", 29, 2, -1, 1, 78.785341),
    Sketcher.Constraint("DistanceY", 31, 2, -1, 1, 10.647479),
    Sketcher.Constraint("Distance", 4, 19.934688),
    Sketcher.Constraint("DistanceY", 1, 3, -1, 1, 6.821793),
    Sketcher.Constraint("DistanceX", -1, 1, 3, 3, 34.594854),
    Sketcher.Constraint("DistanceY", 3, 3, -1, 1, 59.984546),
    Sketcher.Constraint("DistanceX", -1, 1, 29, 3, 39.000826),
    Sketcher.Constraint("DistanceY", 31, 3, -1, 1, 10.647477),
    Sketcher.Constraint("DistanceX", -1, 1, 38, 3, 36.585178),
    Sketcher.Constraint("DistanceY", 38, 3, -1, 1, 73.175873),
    Sketcher.Constraint("DistanceX", -1, 1, 1, 1, 67.515572),
])
pad3 = body3.newObject("PartDesign::Pad", "Pad002")
pad3.Profile = sketch3
pad3.Length = 15
body4 = doc.addObject("PartDesign::Body", "Body003")

# Sketch on XY plane
sketch4 = body4.newObject("Sketcher::SketchObject", "Sketch003")
sketch4.AttachmentSupport = (doc.getObject("XY_Plane003"), [""])
sketch4.MapMode = "FlatFace"
sketch4.addGeometry([
    Part.LineSegment(V(127.3, -60, 0), V(127.3, 60, 0)),  # 0
    Part.ArcOfCircle(Part.Circle(V(122.3, 60, 0), V(0, 0, 1), 5), math.radians(0), math.radians(90)),  # 1
    Part.LineSegment(V(122.3, 65, 0), V(86.3, 65, 0)),  # 2
    Part.ArcOfCircle(Part.Circle(V(86.3, 70, 0), V(0, 0, 1), 5), math.radians(180), math.radians(270)),  # 3
    Part.LineSegment(V(81.3, 70, 0), V(81.3, 83.8, 0)),  # 4
    Part.ArcOfCircle(Part.Circle(V(76.3, 83.8, 0), V(0, 0, 1), 5), math.radians(0), math.radians(90)),  # 5
    Part.LineSegment(V(76.3, 88.8, 0), V(-76.3, 88.8, 0)),  # 6
    Part.ArcOfCircle(Part.Circle(V(-76.3, 83.8, 0), V(0, 0, 1), 5), math.radians(90), math.radians(180)),  # 7
    Part.LineSegment(V(-81.3, 83.8, 0), V(-81.3, -10.9, 0)),  # 8
    Part.ArcOfCircle(Part.Circle(V(-68.3, -10.9, 0), V(0, 0, 1), 13), math.radians(-180), math.radians(-150)),  # 9
    Part.LineSegment(V(-79.5, -17.3, 0), V(-44.3, -78.6, 0)),  # 10
    Part.ArcOfCircle(Part.Circle(V(-39.9, -76.1, 0), V(0, 0, 1), 5), math.radians(-150), math.radians(-60)),  # 11
    Part.LineSegment(V(-37.4, -80.5, 0), V(-14.8, -67.4, 0)),  # 12
    Part.ArcOfCircle(Part.Circle(V(-5.9, -82.7, 0), V(0, 0, 1), 17.7), math.radians(90), math.radians(120)),  # 13
    Part.LineSegment(V(-5.9, -65, 0), V(122.3, -65, 0)),  # 14
    Part.ArcOfCircle(Part.Circle(V(122.3, -60, 0), V(0, 0, 1), 5), math.radians(-90), math.radians(0)),  # 15
    Part.Circle(V(121.3, -59, 0), V(0, 0, 1), 2.5),  # 16
    Part.Circle(V(1.3, -59, 0), V(0, 0, 1), 2.5),  # 17
    Part.Circle(V(-38.2, -69.8, 0), V(0, 0, 1), 2.5),  # 18
    Part.Circle(V(-75.3, 1.8, 0), V(0, 0, 1), 2.5),  # 19
    Part.Circle(V(120.3, 58, 0), V(0, 0, 1), 2.5),  # 20
    Part.Circle(V(74.3, 81.8, 0), V(0, 0, 1), 2.5),  # 21
    Part.Circle(V(-27.5, 82.8, 0), V(0, 0, 1), 2.5),  # 22
    Part.Circle(V(-75.3, 81.8, 0), V(0, 0, 1), 2.5),  # 23
], False)
sketch4.addConstraint([
    Sketcher.Constraint("Tangent", 0, 2, 1, 1),
    Sketcher.Constraint("Tangent", 1, 2, 2, 1),
    Sketcher.Constraint("Tangent", 2, 2, 3, 2),
    Sketcher.Constraint("Tangent", 3, 1, 4, 1),
    Sketcher.Constraint("Tangent", 4, 2, 5, 1),
    Sketcher.Constraint("Tangent", 5, 2, 6, 1),
    Sketcher.Constraint("Tangent", 6, 2, 7, 1),
    Sketcher.Constraint("Tangent", 7, 2, 8, 1),
    Sketcher.Constraint("Tangent", 8, 2, 9, 1),
    Sketcher.Constraint("Tangent", 9, 2, 10, 1),
    Sketcher.Constraint("Tangent", 10, 2, 11, 1),
    Sketcher.Constraint("Tangent", 11, 2, 12, 1),
    Sketcher.Constraint("Tangent", 12, 2, 13, 2),
    Sketcher.Constraint("Tangent", 13, 1, 14, 1),
    Sketcher.Constraint("Tangent", 14, 2, 15, 1),
    Sketcher.Constraint("Tangent", 15, 2, 0, 1),
    Sketcher.Constraint("Vertical", 0),
    Sketcher.Constraint("Horizontal", 2),
    Sketcher.Constraint("Vertical", 4),
    Sketcher.Constraint("Horizontal", 6),
    Sketcher.Constraint("Vertical", 8),
    Sketcher.Constraint("Horizontal", 14),
    Sketcher.Constraint("Equal", 1, 3),
    Sketcher.Constraint("Equal", 3, 5),
    Sketcher.Constraint("Equal", 5, 7),
    Sketcher.Constraint("Equal", 7, 11),
    Sketcher.Constraint("Equal", 11, 15),
    Sketcher.Constraint("Equal", 16, 17),
    Sketcher.Constraint("Equal", 17, 18),
    Sketcher.Constraint("Equal", 18, 19),
    Sketcher.Constraint("Equal", 19, 20),
    Sketcher.Constraint("Equal", 20, 21),
    Sketcher.Constraint("Equal", 21, 22),
    Sketcher.Constraint("Equal", 22, 23),
    Sketcher.Constraint("Horizontal", 16, 3, 17, 3),
    Sketcher.Constraint("Horizontal", 21, 3, 23, 3),
    Sketcher.Constraint("Vertical", 19, 3, 23, 3),
    Sketcher.Constraint("Diameter", 16, 5.0),
    Sketcher.Constraint("Radius", 1, 5.0),
    Sketcher.Constraint("Radius", 9, 13.0),
    Sketcher.Constraint("Angle", 12, Q("29.999999 deg")),
    Sketcher.Constraint("DistanceX", 16, 3, 15, 3, 1.0),
    Sketcher.Constraint("DistanceY", 15, 3, 16, 3, 1.0),
    Sketcher.Constraint("DistanceX", 17, 3, 16, 3, 120.0),
    Sketcher.Constraint("DistanceX", 19, 3, 9, 3, 7.0),
    Sketcher.Constraint("DistanceY", 19, 3, 7, 3, 82.0),
    Sketcher.Constraint("DistanceX", 20, 3, 1, 3, 2.0),
    Sketcher.Constraint("DistanceY", 20, 3, 1, 3, 2.0),
    Sketcher.Constraint("DistanceX", 21, 3, 5, 3, 2.0),
    Sketcher.Constraint("DistanceY", 21, 3, 5, 3, 2.0),
    Sketcher.Constraint("DistanceY", 22, 3, 7, 3, 1.0),
    Sketcher.Constraint("DistanceX", 2, 2, 2, 1, 36.04),
    Sketcher.Constraint("DistanceX", 6, 2, 6, 1, 152.56),
    Sketcher.Constraint("DistanceY", 0, 1, 0, 2, 120.01),
    Sketcher.Constraint("DistanceY", 4, 1, 4, 2, 13.81),
    Sketcher.Constraint("DistanceX", -1, 1, 1, 3, 122.32),
    Sketcher.Constraint("DistanceX", 22, 3, -1, 1, 27.53),
    Sketcher.Constraint("Radius", 13, 17.72999),
    Sketcher.Constraint("DistanceY", -1, 1, 1, 3, 60.005),
    Sketcher.Constraint("DistanceY", 11, 3, -1, 1, 76.1255),
    Sketcher.Constraint("DistanceX", 14, 1, 14, 2, 128.230023),
    Sketcher.Constraint("DistanceY", 8, 2, 8, 1, 94.674775),
    Sketcher.Constraint("DistanceX", 18, 3, 13, 3, 32.284082),
    Sketcher.Constraint("DistanceY", 18, 3, 9, 3, 58.98435),
])
pad4 = body4.newObject("PartDesign::Pad", "Pad003")
pad4.Profile = sketch4
pad4.Length = 3
body5 = doc.addObject("PartDesign::Body", "Body004")

# Sketch on XY plane
sketch5 = body5.newObject("Sketcher::SketchObject", "Sketch004")
sketch5.AttachmentSupport = (doc.getObject("XY_Plane004"), [""])
sketch5.MapMode = "FlatFace"
sketch5.AttachmentOffset = App.Placement(V(0, 0, 3), App.Rotation())
sketch5.addGeometry([
    Part.LineSegment(V(-69.3, -7.7, 0), V(-69.3, 83.8, 0)),  # 0
    Part.ArcOfCircle(Part.Circle(V(-74.3, 83.8, 0), V(0, 0, 1), 5), math.radians(0), math.radians(90)),  # 1
    Part.LineSegment(V(-74.3, 88.8, 0), V(-76.3, 88.8, 0)),  # 2
    Part.ArcOfCircle(Part.Circle(V(-76.3, 83.8, 0), V(0, 0, 1), 5), math.radians(90), math.radians(180)),  # 3
    Part.LineSegment(V(-81.3, 83.8, 0), V(-81.3, -10.9, 0)),  # 4
    Part.ArcOfCircle(Part.Circle(V(-68.3, -10.9, 0), V(0, 0, 1), 13), math.radians(-180), math.radians(-150)),  # 5
    Part.LineSegment(V(-79.5, -17.3, 0), V(-44.3, -78.6, 0)),  # 6
    Part.ArcOfCircle(Part.Circle(V(-39.9, -76.1, 0), V(0, 0, 1), 5), math.radians(-150), math.radians(-60)),  # 7
    Part.LineSegment(V(-37.4, -80.5, 0), V(-14.8, -67.4, 0)),  # 8
    Part.ArcOfCircle(Part.Circle(V(-5.9, -82.7, 0), V(0, 0, 1), 17.7), math.radians(90), math.radians(120)),  # 9
    Part.LineSegment(V(-5.9, -65, 0), V(122.3, -65, 0)),  # 10
    Part.ArcOfCircle(Part.Circle(V(122.3, -60, 0), V(0, 0, 1), 5), math.radians(-90), math.radians(0)),  # 11
    Part.LineSegment(V(127.3, -60, 0), V(127.3, 60, 0)),  # 12
    Part.ArcOfCircle(Part.Circle(V(122.3, 60, 0), V(0, 0, 1), 5), math.radians(0), math.radians(90)),  # 13
    Part.LineSegment(V(122.3, 65, 0), V(86.3, 65, 0)),  # 14
    Part.ArcOfCircle(Part.Circle(V(86.3, 70, 0), V(0, 0, 1), 5), math.radians(180), math.radians(270)),  # 15
    Part.LineSegment(V(81.3, 70, 0), V(81.3, 83.8, 0)),  # 16
    Part.ArcOfCircle(Part.Circle(V(76.3, 83.8, 0), V(0, 0, 1), 5), math.radians(0), math.radians(90)),  # 17
    Part.LineSegment(V(76.3, 88.8, 0), V(-29.5, 88.8, 0)),  # 18
    Part.ArcOfCircle(Part.Circle(V(-29.5, 83.8, 0), V(0, 0, 1), 5), math.radians(90), math.radians(180)),  # 19
    Part.LineSegment(V(-34.5, 83.8, 0), V(-34.5, 81.8, 0)),  # 20
    Part.ArcOfCircle(Part.Circle(V(-29.5, 81.8, 0), V(0, 0, 1), 5), math.radians(180), math.radians(270)),  # 21
    Part.LineSegment(V(-29.5, 76.8, 0), V(64.3, 76.8, 0)),  # 22
    Part.ArcOfCircle(Part.Circle(V(64.3, 71.8, 0), V(0, 0, 1), 5), math.radians(0), math.radians(90)),  # 23
    Part.LineSegment(V(69.3, 71.8, 0), V(69.3, 58, 0)),  # 24
    Part.ArcOfCircle(Part.Circle(V(74.3, 58, 0), V(0, 0, 1), 5), math.radians(180), math.radians(270)),  # 25
    Part.LineSegment(V(74.3, 53, 0), V(110.3, 53, 0)),  # 26
    Part.ArcOfCircle(Part.Circle(V(110.3, 48, 0), V(0, 0, 1), 5), math.radians(0), math.radians(90)),  # 27
    Part.LineSegment(V(115.3, 48, 0), V(115.3, -48, 0)),  # 28
    Part.ArcOfCircle(Part.Circle(V(110.3, -48, 0), V(0, 0, 1), 5), math.radians(-90), math.radians(0)),  # 29
    Part.LineSegment(V(110.3, -53, 0), V(-9.1, -53, 0)),  # 30
    Part.ArcOfCircle(Part.Circle(V(-9.1, -70.7, 0), V(0, 0, 1), 17.7), math.radians(90), math.radians(120)),  # 31
    Part.LineSegment(V(-18, -55.4, 0), V(-33, -64.1, 0)),  # 32
    Part.ArcOfCircle(Part.Circle(V(-35.5, -59.7, 0), V(0, 0, 1), 5), math.radians(-150), math.radians(-60)),  # 33
    Part.LineSegment(V(-39.9, -62.2, 0), V(-67.5, -14.1, 0)),  # 34
    Part.ArcOfCircle(Part.Circle(V(-56.3, -7.7, 0), V(0, 0, 1), 13), math.radians(-180), math.radians(-150)),  # 35
    Part.Circle(V(121.3, -59, 0), V(0, 0, 1), 2.5),  # 36
    Part.Circle(V(1.3, -59, 0), V(0, 0, 1), 2.5),  # 37
    Part.Circle(V(-38.2, -69.8, 0), V(0, 0, 1), 2.5),  # 38
    Part.Circle(V(-75.3, 1.8, 0), V(0, 0, 1), 2.5),  # 39
    Part.Circle(V(120.3, 58, 0), V(0, 0, 1), 2.5),  # 40
    Part.Circle(V(74.3, 81.8, 0), V(0, 0, 1), 2.5),  # 41
    Part.Circle(V(-27.5, 82.8, 0), V(0, 0, 1), 2.5),  # 42
    Part.Circle(V(-75.3, 81.8, 0), V(0, 0, 1), 2.5),  # 43
], False)
sketch5.addConstraint([
    Sketcher.Constraint("Tangent", 0, 2, 1, 1),
    Sketcher.Constraint("Tangent", 1, 2, 2, 1),
    Sketcher.Constraint("Tangent", 2, 2, 3, 1),
    Sketcher.Constraint("Tangent", 3, 2, 4, 1),
    Sketcher.Constraint("Tangent", 4, 2, 5, 1),
    Sketcher.Constraint("Tangent", 5, 2, 6, 1),
    Sketcher.Constraint("Tangent", 6, 2, 7, 1),
    Sketcher.Constraint("Tangent", 7, 2, 8, 1),
    Sketcher.Constraint("Tangent", 8, 2, 9, 2),
    Sketcher.Constraint("Tangent", 9, 1, 10, 1),
    Sketcher.Constraint("Tangent", 10, 2, 11, 1),
    Sketcher.Constraint("Tangent", 11, 2, 12, 1),
    Sketcher.Constraint("Tangent", 12, 2, 13, 1),
    Sketcher.Constraint("Tangent", 13, 2, 14, 1),
    Sketcher.Constraint("Tangent", 14, 2, 15, 2),
    Sketcher.Constraint("Tangent", 15, 1, 16, 1),
    Sketcher.Constraint("Tangent", 16, 2, 17, 1),
    Sketcher.Constraint("Tangent", 17, 2, 18, 1),
    Sketcher.Constraint("Tangent", 18, 2, 19, 1),
    Sketcher.Constraint("Tangent", 19, 2, 20, 1),
    Sketcher.Constraint("Tangent", 20, 2, 21, 1),
    Sketcher.Constraint("Tangent", 21, 2, 22, 1),
    Sketcher.Constraint("Tangent", 22, 2, 23, 2),
    Sketcher.Constraint("Tangent", 23, 1, 24, 1),
    Sketcher.Constraint("Tangent", 24, 2, 25, 1),
    Sketcher.Constraint("Tangent", 25, 2, 26, 1),
    Sketcher.Constraint("Tangent", 26, 2, 27, 2),
    Sketcher.Constraint("Tangent", 27, 1, 28, 1),
    Sketcher.Constraint("Tangent", 28, 2, 29, 2),
    Sketcher.Constraint("Tangent", 29, 1, 30, 1),
    Sketcher.Constraint("Tangent", 30, 2, 31, 1),
    Sketcher.Constraint("Tangent", 31, 2, 32, 1),
    Sketcher.Constraint("Tangent", 32, 2, 33, 2),
    Sketcher.Constraint("Tangent", 33, 1, 34, 1),
    Sketcher.Constraint("Tangent", 34, 2, 35, 2),
    Sketcher.Constraint("Tangent", 35, 1, 0, 1),
    Sketcher.Constraint("Vertical", 0),
    Sketcher.Constraint("Horizontal", 2),
    Sketcher.Constraint("Vertical", 4),
    Sketcher.Constraint("Horizontal", 10),
    Sketcher.Constraint("Vertical", 12),
    Sketcher.Constraint("Horizontal", 14),
    Sketcher.Constraint("Vertical", 16),
    Sketcher.Constraint("Horizontal", 18),
    Sketcher.Constraint("Vertical", 20),
    Sketcher.Constraint("Horizontal", 22),
    Sketcher.Constraint("Vertical", 24),
    Sketcher.Constraint("Horizontal", 26),
    Sketcher.Constraint("Vertical", 28),
    Sketcher.Constraint("Horizontal", 30),
    Sketcher.Constraint("Equal", 1, 3),
    Sketcher.Constraint("Equal", 3, 7),
    Sketcher.Constraint("Equal", 7, 11),
    Sketcher.Constraint("Equal", 11, 13),
    Sketcher.Constraint("Equal", 13, 15),
    Sketcher.Constraint("Equal", 15, 17),
    Sketcher.Constraint("Equal", 17, 19),
    Sketcher.Constraint("Equal", 19, 21),
    Sketcher.Constraint("Equal", 21, 23),
    Sketcher.Constraint("Equal", 23, 25),
    Sketcher.Constraint("Equal", 25, 27),
    Sketcher.Constraint("Equal", 27, 29),
    Sketcher.Constraint("Equal", 9, 31),
    Sketcher.Constraint("Equal", 29, 33),
    Sketcher.Constraint("Equal", 36, 37),
    Sketcher.Constraint("Equal", 37, 38),
    Sketcher.Constraint("Equal", 38, 39),
    Sketcher.Constraint("Equal", 39, 40),
    Sketcher.Constraint("Equal", 40, 41),
    Sketcher.Constraint("Equal", 41, 42),
    Sketcher.Constraint("Equal", 42, 43),
    Sketcher.Constraint("Symmetric", 3, 3, 17, 3, -2),
    Sketcher.Constraint("Parallel", 8, 32),
    Sketcher.Constraint("Parallel", 6, 34),
    Sketcher.Constraint("Horizontal", 36, 3, 37, 3),
    Sketcher.Constraint("Horizontal", 25, 3, 40, 3),
    Sketcher.Constraint("Horizontal", 21, 3, 41, 3),
    Sketcher.Constraint("Horizontal", 41, 3, 43, 3),
    Sketcher.Constraint("Vertical", 25, 3, 41, 3),
    Sketcher.Constraint("Vertical", 39, 3, 43, 3),
    Sketcher.Constraint("Equal", 14, 26),
    Sketcher.Constraint("Equal", 2, 20),
    Sketcher.Constraint("Equal", 16, 24),
    Sketcher.Constraint("Diameter", 36, 5.0),
    Sketcher.Constraint("Radius", 1, 5.0),
    Sketcher.Constraint("Radius", 5, 13.0),
    Sketcher.Constraint("DistanceX", 2, 2, 2, 1, 2.0),
    Sketcher.Constraint("Angle", 8, Q("29.999999 deg")),
    Sketcher.Constraint("DistanceX", 14, 2, 14, 1, 36.04),
    Sketcher.Constraint("DistanceX", 18, 2, 18, 1, 105.81),
    Sketcher.Constraint("DistanceX", 22, 1, 22, 2, 93.81),
    Sketcher.Constraint("DistanceY", 12, 1, 12, 2, 120.01),
    Sketcher.Constraint("DistanceY", 16, 1, 16, 2, 13.81),
    Sketcher.Constraint("DistanceY", 28, 2, 28, 1, 96.01),
    Sketcher.Constraint("DistanceX", 1, 3, -1, 1, 74.28),
    Sketcher.Constraint("DistanceX", -1, 1, 36, 3, 121.32),
    Sketcher.Constraint("DistanceX", -1, 1, 37, 3, 1.32),
    Sketcher.Constraint("DistanceX", 39, 3, -1, 1, 75.28),
    Sketcher.Constraint("DistanceX", -1, 1, 40, 3, 120.32),
    Sketcher.Constraint("DistanceX", 42, 3, -1, 1, 27.53),
    Sketcher.Constraint("Radius", 9, 17.72999),
    Sketcher.Constraint("DistanceY", -1, 1, 1, 3, 83.815),
    Sketcher.Constraint("DistanceY", 36, 3, -1, 1, 59.005),
    Sketcher.Constraint("DistanceY", -1, 1, 39, 3, 1.815),
    Sketcher.Constraint("DistanceY", -1, 1, 42, 3, 82.815),
    Sketcher.Constraint("Radius", 35, 13.000007),
    Sketcher.Constraint("DistanceY", 7, 3, -1, 1, 76.1255),
    Sketcher.Constraint("DistanceY", 33, 3, -1, 1, 59.7269),
    Sketcher.Constraint("Distance", 34, 55.487949),
    Sketcher.Constraint("DistanceX", 10, 1, 10, 2, 128.230023),
    Sketcher.Constraint("DistanceX", 30, 2, 30, 1, 119.445413),
    Sketcher.Constraint("DistanceX", 38, 3, -1, 1, 38.194107),
    Sketcher.Constraint("DistanceY", 38, 3, -1, 1, 69.844124),
])
pad5 = body5.newObject("PartDesign::Pad", "Pad004")
pad5.Profile = sketch5
pad5.Length = 15

doc.recompute()
